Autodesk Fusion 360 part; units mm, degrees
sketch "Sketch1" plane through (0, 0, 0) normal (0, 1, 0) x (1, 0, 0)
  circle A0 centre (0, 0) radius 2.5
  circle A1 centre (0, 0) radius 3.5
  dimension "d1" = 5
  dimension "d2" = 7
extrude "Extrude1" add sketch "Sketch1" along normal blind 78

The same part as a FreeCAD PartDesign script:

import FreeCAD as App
import Part
import Sketcher
Q = App.Units.Quantity

doc = App.newDocument("Part")
body = doc.addObject("PartDesign::Body", "Body")

# Sketch on XZ plane
sketch1 = body.newObject("Sketcher::SketchObject", "Sketch")
sketch1.AttachmentSupport = (doc.getObject("XZ_Plane"), [""])
sketch1.MapMode = "FlatFace"
sketch1.addGeometry(Part.Circle(App.Vector(0, 0, 0), App.Vector(0, 0, 1), 3.5), False)
sketch1.addGeometry(Part.Circle(App.Vector(0, 0, 0), App.Vector(0, 0, 1), 2.5), False)
sketch1.addConstraint(Sketcher.Constraint("Coincident", 0, 3, -1, 1))
sketch1.addConstraint(Sketcher.Constraint("Coincident", 1, 3, -1, 1))
sketch1.addConstraint(Sketcher.Constraint("Diameter", 0, Q("7 mm")))
sketch1.addConstraint(Sketcher.Constraint("Diameter", 1, Q("5 mm")))
pad1 = body.newObject("PartDesign::Pad", "Pad")
pad1.Profile = sketch1
pad1.Length = 78
pad1.Reversed = True

doc.recompute()
